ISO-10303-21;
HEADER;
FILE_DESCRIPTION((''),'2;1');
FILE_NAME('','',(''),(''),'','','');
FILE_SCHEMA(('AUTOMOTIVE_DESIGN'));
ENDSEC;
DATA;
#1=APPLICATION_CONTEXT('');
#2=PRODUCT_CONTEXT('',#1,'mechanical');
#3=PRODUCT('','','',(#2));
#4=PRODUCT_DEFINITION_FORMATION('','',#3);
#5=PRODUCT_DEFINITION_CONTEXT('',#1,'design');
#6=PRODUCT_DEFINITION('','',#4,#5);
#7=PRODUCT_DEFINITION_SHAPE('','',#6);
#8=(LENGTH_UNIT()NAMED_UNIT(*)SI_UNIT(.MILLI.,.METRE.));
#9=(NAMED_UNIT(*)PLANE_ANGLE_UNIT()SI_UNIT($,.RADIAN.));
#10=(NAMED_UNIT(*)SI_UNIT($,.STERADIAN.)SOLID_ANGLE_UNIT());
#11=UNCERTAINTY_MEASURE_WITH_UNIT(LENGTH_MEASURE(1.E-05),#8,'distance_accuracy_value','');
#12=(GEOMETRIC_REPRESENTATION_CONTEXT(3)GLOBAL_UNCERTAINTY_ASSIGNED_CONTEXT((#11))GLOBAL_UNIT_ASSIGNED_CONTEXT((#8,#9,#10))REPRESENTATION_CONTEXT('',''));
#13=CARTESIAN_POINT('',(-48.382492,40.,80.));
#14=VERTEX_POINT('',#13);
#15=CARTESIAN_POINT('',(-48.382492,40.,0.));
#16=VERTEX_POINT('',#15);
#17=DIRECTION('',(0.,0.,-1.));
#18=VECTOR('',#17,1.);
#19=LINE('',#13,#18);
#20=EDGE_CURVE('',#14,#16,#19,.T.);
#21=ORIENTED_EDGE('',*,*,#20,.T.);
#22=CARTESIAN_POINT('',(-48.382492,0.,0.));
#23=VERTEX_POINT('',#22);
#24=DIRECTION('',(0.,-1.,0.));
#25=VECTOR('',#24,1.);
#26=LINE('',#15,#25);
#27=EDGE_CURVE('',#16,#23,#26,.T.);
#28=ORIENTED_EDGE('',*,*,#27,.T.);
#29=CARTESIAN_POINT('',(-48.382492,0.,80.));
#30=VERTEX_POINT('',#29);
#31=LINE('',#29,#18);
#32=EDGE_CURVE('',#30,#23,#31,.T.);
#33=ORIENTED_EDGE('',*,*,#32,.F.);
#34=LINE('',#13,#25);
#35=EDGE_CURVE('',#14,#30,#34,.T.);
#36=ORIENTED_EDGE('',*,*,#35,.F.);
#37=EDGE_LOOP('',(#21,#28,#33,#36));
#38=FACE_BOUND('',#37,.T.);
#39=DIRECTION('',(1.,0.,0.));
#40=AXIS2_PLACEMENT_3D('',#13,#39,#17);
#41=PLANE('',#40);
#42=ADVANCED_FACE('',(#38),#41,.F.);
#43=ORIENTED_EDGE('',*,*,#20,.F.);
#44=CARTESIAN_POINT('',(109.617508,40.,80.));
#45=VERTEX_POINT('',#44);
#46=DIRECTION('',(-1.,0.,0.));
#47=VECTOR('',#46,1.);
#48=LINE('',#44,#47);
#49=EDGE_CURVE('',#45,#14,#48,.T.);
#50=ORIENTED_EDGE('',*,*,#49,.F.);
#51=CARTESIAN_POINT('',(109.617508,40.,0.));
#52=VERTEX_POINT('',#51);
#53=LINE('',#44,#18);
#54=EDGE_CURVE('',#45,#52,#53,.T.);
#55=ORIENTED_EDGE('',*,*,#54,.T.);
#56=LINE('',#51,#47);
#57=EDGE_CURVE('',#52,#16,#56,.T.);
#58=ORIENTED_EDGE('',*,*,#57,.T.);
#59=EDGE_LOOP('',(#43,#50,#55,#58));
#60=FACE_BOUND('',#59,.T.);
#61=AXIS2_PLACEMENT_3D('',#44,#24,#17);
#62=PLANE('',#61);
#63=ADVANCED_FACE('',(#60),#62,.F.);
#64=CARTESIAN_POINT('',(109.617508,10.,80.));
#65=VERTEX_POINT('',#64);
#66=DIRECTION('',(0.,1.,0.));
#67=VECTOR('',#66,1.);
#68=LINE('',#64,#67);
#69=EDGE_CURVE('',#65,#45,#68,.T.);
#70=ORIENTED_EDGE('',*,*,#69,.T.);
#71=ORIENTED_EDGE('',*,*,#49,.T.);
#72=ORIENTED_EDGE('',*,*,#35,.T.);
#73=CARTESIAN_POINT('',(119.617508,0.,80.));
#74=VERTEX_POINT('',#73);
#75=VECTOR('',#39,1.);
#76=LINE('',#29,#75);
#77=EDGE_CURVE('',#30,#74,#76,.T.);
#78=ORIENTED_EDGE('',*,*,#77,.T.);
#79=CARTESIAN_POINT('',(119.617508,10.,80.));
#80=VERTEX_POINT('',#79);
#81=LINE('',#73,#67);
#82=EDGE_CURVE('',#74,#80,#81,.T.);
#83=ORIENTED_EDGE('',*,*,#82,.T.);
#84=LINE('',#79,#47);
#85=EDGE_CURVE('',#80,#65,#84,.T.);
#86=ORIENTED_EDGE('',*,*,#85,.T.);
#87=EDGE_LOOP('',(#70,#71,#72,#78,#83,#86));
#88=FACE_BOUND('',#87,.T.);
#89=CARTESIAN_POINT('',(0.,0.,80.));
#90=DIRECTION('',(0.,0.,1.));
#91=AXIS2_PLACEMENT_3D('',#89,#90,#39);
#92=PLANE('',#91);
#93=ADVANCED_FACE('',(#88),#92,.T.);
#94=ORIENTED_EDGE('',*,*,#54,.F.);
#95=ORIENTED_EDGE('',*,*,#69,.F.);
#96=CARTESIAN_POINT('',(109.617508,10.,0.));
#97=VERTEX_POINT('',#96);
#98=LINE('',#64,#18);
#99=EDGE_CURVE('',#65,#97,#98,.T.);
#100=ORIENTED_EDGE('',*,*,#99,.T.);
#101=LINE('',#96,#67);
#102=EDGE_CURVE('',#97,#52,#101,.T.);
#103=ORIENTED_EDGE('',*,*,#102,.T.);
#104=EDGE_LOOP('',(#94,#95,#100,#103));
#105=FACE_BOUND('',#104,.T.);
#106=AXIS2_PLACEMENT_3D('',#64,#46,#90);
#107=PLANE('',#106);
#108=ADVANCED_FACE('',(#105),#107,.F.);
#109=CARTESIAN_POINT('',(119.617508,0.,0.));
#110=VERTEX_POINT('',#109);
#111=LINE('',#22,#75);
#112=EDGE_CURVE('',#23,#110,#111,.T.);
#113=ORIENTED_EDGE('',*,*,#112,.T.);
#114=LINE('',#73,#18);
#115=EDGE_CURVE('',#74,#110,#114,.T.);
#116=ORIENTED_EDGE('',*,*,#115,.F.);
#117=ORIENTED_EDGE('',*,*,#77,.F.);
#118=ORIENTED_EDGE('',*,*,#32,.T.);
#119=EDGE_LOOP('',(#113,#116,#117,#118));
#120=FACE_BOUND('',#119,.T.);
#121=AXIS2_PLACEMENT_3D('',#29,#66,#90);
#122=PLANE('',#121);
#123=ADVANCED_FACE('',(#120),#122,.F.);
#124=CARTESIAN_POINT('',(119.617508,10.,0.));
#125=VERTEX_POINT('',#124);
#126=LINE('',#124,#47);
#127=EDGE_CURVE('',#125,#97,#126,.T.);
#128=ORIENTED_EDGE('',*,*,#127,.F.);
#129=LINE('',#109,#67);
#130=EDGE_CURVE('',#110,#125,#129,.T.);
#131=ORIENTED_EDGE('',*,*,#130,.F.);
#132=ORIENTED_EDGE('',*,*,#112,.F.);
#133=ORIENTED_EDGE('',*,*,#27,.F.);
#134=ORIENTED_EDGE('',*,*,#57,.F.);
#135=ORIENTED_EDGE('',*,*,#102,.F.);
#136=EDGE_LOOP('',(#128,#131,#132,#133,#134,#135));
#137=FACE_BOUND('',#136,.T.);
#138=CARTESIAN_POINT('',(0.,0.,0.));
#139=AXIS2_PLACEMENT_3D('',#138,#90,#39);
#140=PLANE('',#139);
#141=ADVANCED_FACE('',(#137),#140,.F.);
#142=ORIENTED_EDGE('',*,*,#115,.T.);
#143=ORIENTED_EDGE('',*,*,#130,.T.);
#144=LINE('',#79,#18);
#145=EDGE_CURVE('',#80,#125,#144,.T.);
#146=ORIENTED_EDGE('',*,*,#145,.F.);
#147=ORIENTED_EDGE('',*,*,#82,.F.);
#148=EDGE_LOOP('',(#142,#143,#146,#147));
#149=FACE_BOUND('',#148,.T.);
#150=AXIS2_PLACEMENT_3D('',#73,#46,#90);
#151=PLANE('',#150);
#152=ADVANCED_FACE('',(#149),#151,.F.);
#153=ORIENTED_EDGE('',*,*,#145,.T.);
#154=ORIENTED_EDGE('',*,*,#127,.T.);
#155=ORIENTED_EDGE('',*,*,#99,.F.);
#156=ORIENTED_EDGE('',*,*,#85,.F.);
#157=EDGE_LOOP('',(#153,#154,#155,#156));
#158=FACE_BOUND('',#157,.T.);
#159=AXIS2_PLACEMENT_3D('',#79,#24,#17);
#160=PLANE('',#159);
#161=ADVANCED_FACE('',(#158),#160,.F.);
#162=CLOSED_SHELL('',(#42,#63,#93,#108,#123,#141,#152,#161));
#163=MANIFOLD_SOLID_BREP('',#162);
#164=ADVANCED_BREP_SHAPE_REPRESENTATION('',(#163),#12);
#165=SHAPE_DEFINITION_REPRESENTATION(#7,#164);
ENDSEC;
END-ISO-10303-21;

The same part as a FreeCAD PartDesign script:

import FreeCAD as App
import Part
import Sketcher
from FreeCAD import Vector
Q = App.Units.Quantity

doc = App.newDocument("Part")
body = doc.addObject("PartDesign::Body", "Body")

# Sketch on XY plane
sketch1 = doc.addObject("Sketcher::SketchObject", "Sketch")
body.addObject(sketch1)
sketch1.AttachmentSupport = (doc.XY_Plane, [""])
sketch1.MapMode = "FlatFace"
sketch1.addGeometry([
    Part.LineSegment(Vector(-48.382492, 0, 0), Vector(119.617508, 0, 0)),  # 0
    Part.LineSegment(Vector(119.617508, 0, 0), Vector(119.617508, 10, 0)),  # 1
    Part.LineSegment(Vector(119.617508, 10, 0), Vector(109.617508, 10, 0)),  # 2
    Part.LineSegment(Vector(109.617508, 10, 0), Vector(109.617508, 40, 0)),  # 3
    Part.LineSegment(Vector(109.617508, 40, 0), Vector(-48.382492, 40, 0)),  # 4
    Part.LineSegment(Vector(-48.382492, 40, 0), Vector(-48.382492, 0, 0)),  # 5
], False)
sketch1.addConstraint([
    Sketcher.Constraint("Coincident", 0, 2, 1, 1),
    Sketcher.Constraint("Coincident", 1, 2, 2, 1),
    Sketcher.Constraint("Coincident", 2, 2, 3, 1),
    Sketcher.Constraint("Coincident", 3, 2, 4, 1),
    Sketcher.Constraint("Coincident", 4, 2, 5, 1),
    Sketcher.Constraint("Coincident", 5, 2, 0, 1),
    Sketcher.Constraint("Horizontal", 0),
    Sketcher.Constraint("Vertical", 1),
    Sketcher.Constraint("Horizontal", 2),
    Sketcher.Constraint("Vertical", 3),
    Sketcher.Constraint("Horizontal", 4),
    Sketcher.Constraint("Vertical", 5),
    Sketcher.Constraint("PointOnObject", 0, 2, -1),
    Sketcher.Constraint("Equal", 2, 1),
    Sketcher.Constraint("DistanceX", 0, 1, 0, 2, Q("168 mm")),
    Sketcher.Constraint("DistanceX", 2, 2, 2, 1, Q("10 mm")),
    Sketcher.Constraint("DistanceY", 3, 1, 3, 2, Q("30 mm")),
    Sketcher.Constraint("DistanceX", -1, 1, 0, 2, Q("119.617508 mm")),
])
pad1 = doc.addObject("PartDesign::Pad", "Pad")
body.addObject(pad1)
pad1.Profile = sketch1
pad1.Length = 80

doc.recompute()
